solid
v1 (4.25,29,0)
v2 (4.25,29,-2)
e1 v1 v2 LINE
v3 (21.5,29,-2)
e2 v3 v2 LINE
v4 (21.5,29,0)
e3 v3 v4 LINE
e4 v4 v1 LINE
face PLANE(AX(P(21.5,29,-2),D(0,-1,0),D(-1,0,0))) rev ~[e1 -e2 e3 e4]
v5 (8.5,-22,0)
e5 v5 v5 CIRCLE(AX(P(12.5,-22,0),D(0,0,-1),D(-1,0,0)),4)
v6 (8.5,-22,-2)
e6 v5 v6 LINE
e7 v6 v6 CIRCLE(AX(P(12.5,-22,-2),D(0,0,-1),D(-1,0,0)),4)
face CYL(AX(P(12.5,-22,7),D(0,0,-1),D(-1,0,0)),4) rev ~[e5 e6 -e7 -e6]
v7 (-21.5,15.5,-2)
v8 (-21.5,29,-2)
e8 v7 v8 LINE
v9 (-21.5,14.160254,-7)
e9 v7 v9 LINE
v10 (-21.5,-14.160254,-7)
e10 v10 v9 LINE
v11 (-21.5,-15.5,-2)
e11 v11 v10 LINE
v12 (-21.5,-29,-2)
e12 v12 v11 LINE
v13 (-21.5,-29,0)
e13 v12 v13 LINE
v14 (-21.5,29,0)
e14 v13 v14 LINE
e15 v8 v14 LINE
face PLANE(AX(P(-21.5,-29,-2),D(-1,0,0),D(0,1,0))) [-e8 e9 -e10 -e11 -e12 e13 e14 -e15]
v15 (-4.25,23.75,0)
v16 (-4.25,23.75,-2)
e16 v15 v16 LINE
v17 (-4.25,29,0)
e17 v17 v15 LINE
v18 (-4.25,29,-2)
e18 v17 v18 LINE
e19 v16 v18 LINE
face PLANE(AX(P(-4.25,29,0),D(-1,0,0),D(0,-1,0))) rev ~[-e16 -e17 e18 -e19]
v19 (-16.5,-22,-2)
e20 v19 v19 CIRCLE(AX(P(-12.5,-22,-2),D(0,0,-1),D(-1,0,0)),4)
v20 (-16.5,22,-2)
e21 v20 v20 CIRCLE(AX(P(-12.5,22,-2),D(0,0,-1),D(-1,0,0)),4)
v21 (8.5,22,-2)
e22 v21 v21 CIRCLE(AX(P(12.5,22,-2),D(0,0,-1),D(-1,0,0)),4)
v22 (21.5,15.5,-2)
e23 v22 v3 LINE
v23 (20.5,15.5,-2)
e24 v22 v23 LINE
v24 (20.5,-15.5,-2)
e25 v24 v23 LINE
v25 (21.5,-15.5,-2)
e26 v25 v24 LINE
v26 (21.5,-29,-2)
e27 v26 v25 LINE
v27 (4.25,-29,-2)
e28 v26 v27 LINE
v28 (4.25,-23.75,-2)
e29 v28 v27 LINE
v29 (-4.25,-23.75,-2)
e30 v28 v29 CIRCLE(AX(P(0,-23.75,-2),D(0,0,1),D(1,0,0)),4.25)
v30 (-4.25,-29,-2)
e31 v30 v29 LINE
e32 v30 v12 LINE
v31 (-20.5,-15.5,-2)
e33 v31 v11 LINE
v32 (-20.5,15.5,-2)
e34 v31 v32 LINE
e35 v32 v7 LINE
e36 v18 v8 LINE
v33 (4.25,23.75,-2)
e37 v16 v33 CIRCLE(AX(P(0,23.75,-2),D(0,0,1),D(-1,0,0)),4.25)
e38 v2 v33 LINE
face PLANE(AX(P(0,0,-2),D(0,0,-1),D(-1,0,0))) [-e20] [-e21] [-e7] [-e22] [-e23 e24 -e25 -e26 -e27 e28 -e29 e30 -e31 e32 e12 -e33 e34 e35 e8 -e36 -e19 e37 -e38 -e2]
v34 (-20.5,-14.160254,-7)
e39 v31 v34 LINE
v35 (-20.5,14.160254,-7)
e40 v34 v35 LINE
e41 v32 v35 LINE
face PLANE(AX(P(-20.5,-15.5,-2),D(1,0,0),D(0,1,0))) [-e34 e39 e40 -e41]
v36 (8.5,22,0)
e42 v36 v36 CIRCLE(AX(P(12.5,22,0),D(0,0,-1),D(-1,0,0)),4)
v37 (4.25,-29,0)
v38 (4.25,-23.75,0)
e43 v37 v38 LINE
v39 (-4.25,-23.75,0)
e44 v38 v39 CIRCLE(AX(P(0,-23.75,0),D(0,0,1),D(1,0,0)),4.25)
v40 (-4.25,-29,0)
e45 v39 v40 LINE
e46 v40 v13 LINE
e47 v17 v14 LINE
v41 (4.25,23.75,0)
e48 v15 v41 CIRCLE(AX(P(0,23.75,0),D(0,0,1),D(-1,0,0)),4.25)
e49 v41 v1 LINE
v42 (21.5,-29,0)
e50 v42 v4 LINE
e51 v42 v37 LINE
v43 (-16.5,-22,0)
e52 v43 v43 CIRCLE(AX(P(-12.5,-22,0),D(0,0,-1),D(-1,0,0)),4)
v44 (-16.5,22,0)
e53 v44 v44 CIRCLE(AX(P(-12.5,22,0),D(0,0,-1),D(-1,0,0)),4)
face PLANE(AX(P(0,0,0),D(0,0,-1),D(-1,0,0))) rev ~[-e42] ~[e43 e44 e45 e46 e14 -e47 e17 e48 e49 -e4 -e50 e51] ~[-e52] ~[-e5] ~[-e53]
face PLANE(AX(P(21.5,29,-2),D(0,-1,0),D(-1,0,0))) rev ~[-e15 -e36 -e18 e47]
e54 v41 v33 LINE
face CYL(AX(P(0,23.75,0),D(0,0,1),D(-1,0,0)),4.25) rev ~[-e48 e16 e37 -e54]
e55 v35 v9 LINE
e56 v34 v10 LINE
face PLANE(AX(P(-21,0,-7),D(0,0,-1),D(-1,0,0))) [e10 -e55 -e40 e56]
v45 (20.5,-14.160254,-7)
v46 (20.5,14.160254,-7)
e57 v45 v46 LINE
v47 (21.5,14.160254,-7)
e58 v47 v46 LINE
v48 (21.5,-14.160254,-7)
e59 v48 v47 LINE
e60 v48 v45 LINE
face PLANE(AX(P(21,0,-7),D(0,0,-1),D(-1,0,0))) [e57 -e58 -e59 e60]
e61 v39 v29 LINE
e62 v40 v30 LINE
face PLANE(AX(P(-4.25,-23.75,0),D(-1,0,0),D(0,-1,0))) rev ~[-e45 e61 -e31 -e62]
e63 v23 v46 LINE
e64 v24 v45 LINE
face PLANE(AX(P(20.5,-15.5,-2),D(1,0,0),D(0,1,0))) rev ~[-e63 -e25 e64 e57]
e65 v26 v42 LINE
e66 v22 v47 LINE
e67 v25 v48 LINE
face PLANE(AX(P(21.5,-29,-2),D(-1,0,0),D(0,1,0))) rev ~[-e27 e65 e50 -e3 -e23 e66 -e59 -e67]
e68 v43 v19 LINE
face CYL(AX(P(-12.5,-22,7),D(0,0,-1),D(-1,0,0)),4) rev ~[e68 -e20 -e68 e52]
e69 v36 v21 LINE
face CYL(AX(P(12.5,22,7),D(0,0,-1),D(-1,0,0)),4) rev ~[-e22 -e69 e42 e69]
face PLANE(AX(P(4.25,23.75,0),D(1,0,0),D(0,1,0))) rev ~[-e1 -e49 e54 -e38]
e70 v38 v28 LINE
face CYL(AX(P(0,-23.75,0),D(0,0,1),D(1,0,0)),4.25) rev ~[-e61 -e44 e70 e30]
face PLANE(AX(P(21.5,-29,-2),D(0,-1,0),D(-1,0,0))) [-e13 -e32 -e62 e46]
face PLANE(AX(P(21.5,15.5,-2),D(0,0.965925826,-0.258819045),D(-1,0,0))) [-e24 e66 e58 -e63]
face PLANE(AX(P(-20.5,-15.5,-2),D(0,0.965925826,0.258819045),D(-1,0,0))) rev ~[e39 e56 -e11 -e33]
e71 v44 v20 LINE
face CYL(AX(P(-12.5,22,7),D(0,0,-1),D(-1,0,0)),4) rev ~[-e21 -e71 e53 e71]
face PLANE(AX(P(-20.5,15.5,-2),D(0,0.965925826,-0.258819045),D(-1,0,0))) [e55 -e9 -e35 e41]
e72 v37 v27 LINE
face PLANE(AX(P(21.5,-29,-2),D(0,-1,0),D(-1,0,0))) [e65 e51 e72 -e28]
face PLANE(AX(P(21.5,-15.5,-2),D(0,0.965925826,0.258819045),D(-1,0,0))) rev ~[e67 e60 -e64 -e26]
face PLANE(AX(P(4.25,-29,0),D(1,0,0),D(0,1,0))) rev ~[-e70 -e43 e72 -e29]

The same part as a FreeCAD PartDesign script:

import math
import FreeCAD as App
import Part
import Sketcher

V = App.Vector


def faces_at(feature, points):
    """Names of the faces that lie closest to the given points."""
    faces = feature.Shape.Faces
    near = lambda p: min(range(len(faces)), key=lambda i: faces[i].distToShape(Part.Vertex(*p))[0])
    return sorted({f"Face{near(p) + 1}" for p in points})


def add_polygon(sketch, points):
    """Adds a closed chain of lines whose ends are joined by coincident constraints."""
    first, n = sketch.GeometryCount, len(points)
    for a, b in zip(points, points[1:] + points[:1]):
        sketch.addGeometry(Part.LineSegment(App.Vector(*a, 0), App.Vector(*b, 0)), False)
    for i in range(n):
        sketch.addConstraint(Sketcher.Constraint("Coincident", first + i, 2, first + (i + 1) % n, 1))

doc = App.newDocument("Part")
params = doc.addObject("Spreadsheet::Sheet", "Params")
for row, (alias, value) in enumerate([
    ("sketch1_width", "43 mm"),
    ("sketch1_height", "58 mm"),
    ("pad1_length", "2 mm"),
    ("sketch2_radius", "4.25 mm"),
    ("sketch2_height", "5.25 mm"),
    ("sketch3_radius", "4.25 mm"),
    ("sketch3_height", "5.25 mm"),
    ("sketch4_width", "1 mm"),
    ("sketch4_height", "31 mm"),
    ("pad2_length", "5 mm"),
    ("sketch5_width", "1 mm"),
    ("sketch5_height", "31 mm"),
    ("pad3_length", "5 mm"),
    ("draft_angle", "15 deg"),
    ("sketch6_diameter", "8 mm"),
    ("hole_diameter", "8 mm"),
    ("hole_depth", "7 mm"),
], start=1):
    params.set(f"A{row}", alias)
    params.set(f"B{row}", "=" + value)
    params.setAlias(f"B{row}", alias)

body = doc.addObject("PartDesign::Body", "Body")

sketch1 = doc.addObject("Sketcher::SketchObject", "Sketch")
body.addObject(sketch1)
sketch1.AttachmentSupport = (doc.XY_Plane, [""])
sketch1.MapMode = "FlatFace"
sketch1.AttachmentOffset = App.Placement(V(0, 0, -2), App.Rotation())
add_polygon(sketch1, [(22, 29), (22, -29), (-22, -29), (-22, 29)])
sketch1.addConstraint(Sketcher.Constraint("Vertical", 0))
sketch1.addConstraint(Sketcher.Constraint("Horizontal", 1))
sketch1.addConstraint(Sketcher.Constraint("Vertical", 2))
sketch1.addConstraint(Sketcher.Constraint("Horizontal", 3))
sketch1.addConstraint(Sketcher.Constraint("Symmetric", 0, 2, 2, 2, -1, 1))
sketch1.addConstraint(Sketcher.Constraint("DistanceX", 1, 2, 1, 1, 43.0))
sketch1.addConstraint(Sketcher.Constraint("DistanceY", 0, 2, 0, 1, 58.0))
sketch1.setExpression("Constraints[9]", "Params.sketch1_width")
sketch1.setExpression("Constraints[10]", "Params.sketch1_height")
pad1 = doc.addObject("PartDesign::Pad", "Pad")
body.addObject(pad1)
pad1.Profile = sketch1
pad1.setExpression("Length", "Params.pad1_length")

sketch2 = doc.addObject("Sketcher::SketchObject", "Sketch001")
body.addObject(sketch2)
sketch2.AttachmentSupport = (doc.XY_Plane, [""])
sketch2.MapMode = "FlatFace"
sketch2.addGeometry(Part.LineSegment(V(4.2, 29, 0), V(-4.2, 29, 0)), False)
sketch2.addGeometry(Part.LineSegment(V(-4.2, 29, 0), V(-4.2, 23.8, 0)), False)
sketch2.addGeometry(Part.ArcOfCircle(Part.Circle(V(0, 23.8, 0), V(0, 0, 1), 4.2), math.radians(180), math.radians(360)), False)
sketch2.addGeometry(Part.LineSegment(V(4.2, 23.8, 0), V(4.2, 29, 0)), False)
sketch2.addConstraint(Sketcher.Constraint("Coincident", 0, 2, 1, 1))
sketch2.addConstraint(Sketcher.Constraint("Tangent", 1, 2, 2, 1))
sketch2.addConstraint(Sketcher.Constraint("Tangent", 2, 2, 3, 1))
sketch2.addConstraint(Sketcher.Constraint("Coincident", 3, 2, 0, 1))
sketch2.addConstraint(Sketcher.Constraint("Horizontal", 0))
sketch2.addConstraint(Sketcher.Constraint("Vertical", 1))
sketch2.addConstraint(Sketcher.Constraint("Vertical", 3))
sketch2.addConstraint(Sketcher.Constraint("PointOnObject", 2, 3, -2))
sketch2.addConstraint(Sketcher.Constraint("Radius", 2, 4.25))
sketch2.addConstraint(Sketcher.Constraint("DistanceY", -1, 1, 0, 2, 29.0))
sketch2.addConstraint(Sketcher.Constraint("DistanceY", 1, 2, 1, 1, 5.25))
sketch2.setExpression("Constraints[8]", "Params.sketch2_radius")
sketch2.setExpression("Constraints[10]", "Params.sketch2_height")
pocket1 = doc.addObject("PartDesign::Pocket", "Pocket")
body.addObject(pocket1)
pocket1.Profile = sketch2
pocket1.Type = "ThroughAll"

sketch3 = doc.addObject("Sketcher::SketchObject", "Sketch002")
body.addObject(sketch3)
sketch3.AttachmentSupport = (doc.XY_Plane, [""])
sketch3.MapMode = "FlatFace"
sketch3.addGeometry(Part.LineSegment(V(-4.2, -29, 0), V(4.2, -29, 0)), False)
sketch3.addGeometry(Part.LineSegment(V(4.2, -29, 0), V(4.2, -23.8, 0)), False)
sketch3.addGeometry(Part.ArcOfCircle(Part.Circle(V(0, -23.8, 0), V(0, 0, 1), 4.2), math.radians(0), math.radians(180)), False)
sketch3.addGeometry(Part.LineSegment(V(-4.2, -23.8, 0), V(-4.2, -29, 0)), False)
sketch3.addConstraint(Sketcher.Constraint("Coincident", 0, 2, 1, 1))
sketch3.addConstraint(Sketcher.Constraint("Tangent", 1, 2, 2, 1))
sketch3.addConstraint(Sketcher.Constraint("Tangent", 2, 2, 3, 1))
sketch3.addConstraint(Sketcher.Constraint("Coincident", 3, 2, 0, 1))
sketch3.addConstraint(Sketcher.Constraint("Horizontal", 0))
sketch3.addConstraint(Sketcher.Constraint("Vertical", 1))
sketch3.addConstraint(Sketcher.Constraint("Vertical", 3))
sketch3.addConstraint(Sketcher.Constraint("PointOnObject", 2, 3, -2))
sketch3.addConstraint(Sketcher.Constraint("Radius", 2, 4.25))
sketch3.addConstraint(Sketcher.Constraint("DistanceY", 0, 2, -1, 1, 29.0))
sketch3.addConstraint(Sketcher.Constraint("DistanceY", 1, 1, 1, 2, 5.25))
sketch3.setExpression("Constraints[8]", "Params.sketch3_radius")
sketch3.setExpression("Constraints[10]", "Params.sketch3_height")
pocket2 = doc.addObject("PartDesign::Pocket", "Pocket001")
body.addObject(pocket2)
pocket2.Profile = sketch3
pocket2.Type = "ThroughAll"

sketch4 = doc.addObject("Sketcher::SketchObject", "Sketch003")
body.addObject(sketch4)
sketch4.AttachmentSupport = (doc.XY_Plane, [""])
sketch4.MapMode = "FlatFace"
sketch4.AttachmentOffset = App.Placement(V(0, 0, -2), App.Rotation())
add_polygon(sketch4, [(21.5, 15.5), (21.5, -15.5), (20.5, -15.5), (20.5, 15.5)])
sketch4.addConstraint(Sketcher.Constraint("Vertical", 0))
sketch4.addConstraint(Sketcher.Constraint("Horizontal", 1))
sketch4.addConstraint(Sketcher.Constraint("Vertical", 2))
sketch4.addConstraint(Sketcher.Constraint("Horizontal", 3))
sketch4.addConstraint(Sketcher.Constraint("DistanceX", 1, 2, 1, 1, 1.0))
sketch4.addConstraint(Sketcher.Constraint("DistanceY", 0, 2, 0, 1, 31.0))
sketch4.addConstraint(Sketcher.Constraint("DistanceX", -1, 1, 0, 2, 21.5))
sketch4.addConstraint(Sketcher.Constraint("DistanceY", 0, 2, -1, 1, 15.5))
sketch4.setExpression("Constraints[8]", "Params.sketch4_width")
sketch4.setExpression("Constraints[9]", "Params.sketch4_height")
pad2 = doc.addObject("PartDesign::Pad", "Pad001")
body.addObject(pad2)
pad2.Profile = sketch4
pad2.setExpression("Length", "Params.pad2_length")
pad2.Reversed = True

sketch5 = doc.addObject("Sketcher::SketchObject", "Sketch004")
body.addObject(sketch5)
sketch5.AttachmentSupport = (doc.XY_Plane, [""])
sketch5.MapMode = "FlatFace"
sketch5.AttachmentOffset = App.Placement(V(0, 0, -2), App.Rotation())
add_polygon(sketch5, [(-20.5, 15.5), (-20.5, -15.5), (-21.5, -15.5), (-21.5, 15.5)])
sketch5.addConstraint(Sketcher.Constraint("Vertical", 0))
sketch5.addConstraint(Sketcher.Constraint("Horizontal", 1))
sketch5.addConstraint(Sketcher.Constraint("Vertical", 2))
sketch5.addConstraint(Sketcher.Constraint("Horizontal", 3))
sketch5.addConstraint(Sketcher.Constraint("DistanceX", 1, 2, 1, 1, 1.0))
sketch5.addConstraint(Sketcher.Constraint("DistanceY", 0, 2, 0, 1, 31.0))
sketch5.addConstraint(Sketcher.Constraint("DistanceX", 0, 2, -1, 1, 20.5))
sketch5.addConstraint(Sketcher.Constraint("DistanceY", 0, 2, -1, 1, 15.5))
sketch5.setExpression("Constraints[8]", "Params.sketch5_width")
sketch5.setExpression("Constraints[9]", "Params.sketch5_height")
pad3 = doc.addObject("PartDesign::Pad", "Pad002")
body.addObject(pad3)
pad3.Profile = sketch5
pad3.setExpression("Length", "Params.pad3_length")
pad3.Reversed = True
doc.recompute()

datumplane = doc.addObject("PartDesign::Plane", "DatumPlane")
body.addObject(datumplane)
datumplane.AttachmentSupport = (doc.XY_Plane, [""])
datumplane.MapMode = "FlatFace"
datumplane.AttachmentOffset = App.Placement(V(0, 0, -2), App.Rotation())
draft = doc.addObject("PartDesign::Draft", "Draft")
body.addObject(draft)
draft.Base = (pad3, faces_at(pad3, [
    (21, -15.5, -4.5),
    (21, 15.5, -4.5),
    (-21, 15.5, -4.5),
    (-21, -15.5, -4.5),
]))
draft.NeutralPlane = (datumplane, [""])
draft.setExpression("Angle", "Params.draft_angle")
draft.Reversed = True

sketch6 = doc.addObject("Sketcher::SketchObject", "Sketch005")
body.addObject(sketch6)
sketch6.AttachmentSupport = (doc.XY_Plane, [""])
sketch6.MapMode = "FlatFace"
sketch6.addGeometry(Part.Circle(V(12.5, 22, 0), V(0, 0, 1), 4), False)
sketch6.addGeometry(Part.Circle(V(-12.5, 22, 0), V(0, 0, 1), 4), False)
sketch6.addGeometry(Part.Circle(V(-12.5, -22, 0), V(0, 0, 1), 4), False)
sketch6.addGeometry(Part.Circle(V(12.5, -22, 0), V(0, 0, 1), 4), False)
sketch6.addConstraint(Sketcher.Constraint("Equal", 0, 1))
sketch6.addConstraint(Sketcher.Constraint("Equal", 1, 2))
sketch6.addConstraint(Sketcher.Constraint("Equal", 2, 3))
sketch6.addConstraint(Sketcher.Constraint("Symmetric", 0, 3, 2, 3, -1, 1))
sketch6.addConstraint(Sketcher.Constraint("Symmetric", 1, 3, 3, 3, -1, 1))
sketch6.addConstraint(Sketcher.Constraint("Symmetric", 0, 3, 1, 3, -2))
sketch6.addConstraint(Sketcher.Constraint("Diameter", 0, 8.0))
sketch6.addConstraint(Sketcher.Constraint("DistanceY", -1, 1, 0, 3, 22.0))
sketch6.addConstraint(Sketcher.Constraint("DistanceX", 1, 3, 0, 3, 25.0))
sketch6.setExpression("Constraints[6]", "Params.sketch6_diameter")
doc.recompute()
hole = doc.addObject("PartDesign::Hole", "Hole")
body.addObject(hole)
hole.Profile = sketch6
hole.ThreadType = "None"
hole.setExpression("Diameter", "Params.hole_diameter")
hole.DepthType = "Dimension"
hole.setExpression("Depth", "Params.hole_depth")
hole.DrillPoint = "Flat"

doc.recompute()
